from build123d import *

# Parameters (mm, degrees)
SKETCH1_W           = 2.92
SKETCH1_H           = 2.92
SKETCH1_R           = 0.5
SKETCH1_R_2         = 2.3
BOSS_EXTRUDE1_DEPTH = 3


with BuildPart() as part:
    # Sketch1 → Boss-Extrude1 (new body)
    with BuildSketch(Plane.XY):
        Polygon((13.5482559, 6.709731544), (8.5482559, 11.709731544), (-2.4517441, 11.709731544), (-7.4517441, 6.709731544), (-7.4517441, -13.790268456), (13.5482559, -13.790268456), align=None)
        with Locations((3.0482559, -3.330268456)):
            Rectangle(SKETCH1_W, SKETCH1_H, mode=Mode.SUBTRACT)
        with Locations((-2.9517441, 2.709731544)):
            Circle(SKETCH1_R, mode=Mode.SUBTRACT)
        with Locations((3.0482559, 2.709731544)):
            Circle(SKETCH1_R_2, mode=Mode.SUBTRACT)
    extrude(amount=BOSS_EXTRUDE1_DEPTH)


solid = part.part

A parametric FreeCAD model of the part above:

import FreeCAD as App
import Part
import Sketcher
from FreeCAD import Vector


def add_polygon(sketch, points):
    """Adds a closed chain of lines whose ends are joined by coincident constraints."""
    first, n = sketch.GeometryCount, len(points)
    for a, b in zip(points, points[1:] + points[:1]):
        sketch.addGeometry(Part.LineSegment(App.Vector(*a, 0), App.Vector(*b, 0)), False)
    for i in range(n):
        sketch.addConstraint(Sketcher.Constraint("Coincident", first + i, 2, first + (i + 1) % n, 1))

doc = App.newDocument("Part")
body = doc.addObject("PartDesign::Body", "Body")

# Sketch on XY plane
sketch1 = body.newObject("Sketcher::SketchObject", "Sketch")
sketch1.AttachmentSupport = (doc.getObject("XY_Plane"), [""])
sketch1.MapMode = "FlatFace"
add_polygon(sketch1, [(13.5, 6.7), (8.5, 11.7), (-2.5, 11.7), (-7.5, 6.7), (-7.5, -13.8), (13.5, -13.8)])  # lines 0-5
add_polygon(sketch1, [(4.5, -4.8), (1.6, -4.8), (1.6, -1.9), (4.5, -1.9)])  # lines 6-9
sketch1.addGeometry(Part.Circle(Vector(-3, 2.7, 0), Vector(0, 0, 1), 0.5), False)  # 10
sketch1.addGeometry(Part.Circle(Vector(3, 2.7, 0), Vector(0, 0, 1), 2.3), False)  # 11
sketch1.addConstraint(Sketcher.Constraint("Horizontal", 1))
sketch1.addConstraint(Sketcher.Constraint("Vertical", 3))
sketch1.addConstraint(Sketcher.Constraint("Horizontal", 4))
sketch1.addConstraint(Sketcher.Constraint("Vertical", 5))
sketch1.addConstraint(Sketcher.Constraint("Horizontal", 6))
sketch1.addConstraint(Sketcher.Constraint("Vertical", 7))
sketch1.addConstraint(Sketcher.Constraint("Horizontal", 8))
sketch1.addConstraint(Sketcher.Constraint("Vertical", 9))
sketch1.addConstraint(Sketcher.Constraint("Perpendicular", 0, 2))
sketch1.addConstraint(Sketcher.Constraint("Horizontal", 10, 3, 11, 3))
sketch1.addConstraint(Sketcher.Constraint("Horizontal", 2, 2, 5, 2))
sketch1.addConstraint(Sketcher.Constraint("Equal", 8, 7))
sketch1.addConstraint(Sketcher.Constraint("Equal", 0, 2))
sketch1.addConstraint(Sketcher.Constraint("Diameter", 10, 1.0))
sketch1.addConstraint(Sketcher.Constraint("Diameter", 11, 4.6))
sketch1.addConstraint(Sketcher.Constraint("DistanceX", 1, 2, 1, 1, 11.0))
sketch1.addConstraint(Sketcher.Constraint("DistanceX", 4, 1, 4, 2, 21.0))
sketch1.addConstraint(Sketcher.Constraint("DistanceY", 3, 2, 3, 1, 20.5))
sketch1.addConstraint(Sketcher.Constraint("DistanceX", 10, 3, 11, 3, 6.0))
sketch1.addConstraint(Sketcher.Constraint("DistanceY", 11, 3, 0, 2, 9.0))
sketch1.addConstraint(Sketcher.Constraint("DistanceY", 3, 2, 6, 2, 9.0))
sketch1.addConstraint(Sketcher.Constraint("DistanceX", 6, 2, 6, 1, 2.92))
sketch1.addConstraint(Sketcher.Constraint("DistanceX", 11, 3, 0, 2, 5.5))
sketch1.addConstraint(Sketcher.Constraint("DistanceX", 6, 2, 11, 3, 1.46))
sketch1.addConstraint(Sketcher.Constraint("DistanceY", -1, 1, 10, 3, 2.709732))
sketch1.addConstraint(Sketcher.Constraint("DistanceX", 10, 3, -1, 1, 2.951744))
pad1 = body.newObject("PartDesign::Pad", "Pad")
pad1.Profile = sketch1
pad1.Length = 3

doc.recompute()
